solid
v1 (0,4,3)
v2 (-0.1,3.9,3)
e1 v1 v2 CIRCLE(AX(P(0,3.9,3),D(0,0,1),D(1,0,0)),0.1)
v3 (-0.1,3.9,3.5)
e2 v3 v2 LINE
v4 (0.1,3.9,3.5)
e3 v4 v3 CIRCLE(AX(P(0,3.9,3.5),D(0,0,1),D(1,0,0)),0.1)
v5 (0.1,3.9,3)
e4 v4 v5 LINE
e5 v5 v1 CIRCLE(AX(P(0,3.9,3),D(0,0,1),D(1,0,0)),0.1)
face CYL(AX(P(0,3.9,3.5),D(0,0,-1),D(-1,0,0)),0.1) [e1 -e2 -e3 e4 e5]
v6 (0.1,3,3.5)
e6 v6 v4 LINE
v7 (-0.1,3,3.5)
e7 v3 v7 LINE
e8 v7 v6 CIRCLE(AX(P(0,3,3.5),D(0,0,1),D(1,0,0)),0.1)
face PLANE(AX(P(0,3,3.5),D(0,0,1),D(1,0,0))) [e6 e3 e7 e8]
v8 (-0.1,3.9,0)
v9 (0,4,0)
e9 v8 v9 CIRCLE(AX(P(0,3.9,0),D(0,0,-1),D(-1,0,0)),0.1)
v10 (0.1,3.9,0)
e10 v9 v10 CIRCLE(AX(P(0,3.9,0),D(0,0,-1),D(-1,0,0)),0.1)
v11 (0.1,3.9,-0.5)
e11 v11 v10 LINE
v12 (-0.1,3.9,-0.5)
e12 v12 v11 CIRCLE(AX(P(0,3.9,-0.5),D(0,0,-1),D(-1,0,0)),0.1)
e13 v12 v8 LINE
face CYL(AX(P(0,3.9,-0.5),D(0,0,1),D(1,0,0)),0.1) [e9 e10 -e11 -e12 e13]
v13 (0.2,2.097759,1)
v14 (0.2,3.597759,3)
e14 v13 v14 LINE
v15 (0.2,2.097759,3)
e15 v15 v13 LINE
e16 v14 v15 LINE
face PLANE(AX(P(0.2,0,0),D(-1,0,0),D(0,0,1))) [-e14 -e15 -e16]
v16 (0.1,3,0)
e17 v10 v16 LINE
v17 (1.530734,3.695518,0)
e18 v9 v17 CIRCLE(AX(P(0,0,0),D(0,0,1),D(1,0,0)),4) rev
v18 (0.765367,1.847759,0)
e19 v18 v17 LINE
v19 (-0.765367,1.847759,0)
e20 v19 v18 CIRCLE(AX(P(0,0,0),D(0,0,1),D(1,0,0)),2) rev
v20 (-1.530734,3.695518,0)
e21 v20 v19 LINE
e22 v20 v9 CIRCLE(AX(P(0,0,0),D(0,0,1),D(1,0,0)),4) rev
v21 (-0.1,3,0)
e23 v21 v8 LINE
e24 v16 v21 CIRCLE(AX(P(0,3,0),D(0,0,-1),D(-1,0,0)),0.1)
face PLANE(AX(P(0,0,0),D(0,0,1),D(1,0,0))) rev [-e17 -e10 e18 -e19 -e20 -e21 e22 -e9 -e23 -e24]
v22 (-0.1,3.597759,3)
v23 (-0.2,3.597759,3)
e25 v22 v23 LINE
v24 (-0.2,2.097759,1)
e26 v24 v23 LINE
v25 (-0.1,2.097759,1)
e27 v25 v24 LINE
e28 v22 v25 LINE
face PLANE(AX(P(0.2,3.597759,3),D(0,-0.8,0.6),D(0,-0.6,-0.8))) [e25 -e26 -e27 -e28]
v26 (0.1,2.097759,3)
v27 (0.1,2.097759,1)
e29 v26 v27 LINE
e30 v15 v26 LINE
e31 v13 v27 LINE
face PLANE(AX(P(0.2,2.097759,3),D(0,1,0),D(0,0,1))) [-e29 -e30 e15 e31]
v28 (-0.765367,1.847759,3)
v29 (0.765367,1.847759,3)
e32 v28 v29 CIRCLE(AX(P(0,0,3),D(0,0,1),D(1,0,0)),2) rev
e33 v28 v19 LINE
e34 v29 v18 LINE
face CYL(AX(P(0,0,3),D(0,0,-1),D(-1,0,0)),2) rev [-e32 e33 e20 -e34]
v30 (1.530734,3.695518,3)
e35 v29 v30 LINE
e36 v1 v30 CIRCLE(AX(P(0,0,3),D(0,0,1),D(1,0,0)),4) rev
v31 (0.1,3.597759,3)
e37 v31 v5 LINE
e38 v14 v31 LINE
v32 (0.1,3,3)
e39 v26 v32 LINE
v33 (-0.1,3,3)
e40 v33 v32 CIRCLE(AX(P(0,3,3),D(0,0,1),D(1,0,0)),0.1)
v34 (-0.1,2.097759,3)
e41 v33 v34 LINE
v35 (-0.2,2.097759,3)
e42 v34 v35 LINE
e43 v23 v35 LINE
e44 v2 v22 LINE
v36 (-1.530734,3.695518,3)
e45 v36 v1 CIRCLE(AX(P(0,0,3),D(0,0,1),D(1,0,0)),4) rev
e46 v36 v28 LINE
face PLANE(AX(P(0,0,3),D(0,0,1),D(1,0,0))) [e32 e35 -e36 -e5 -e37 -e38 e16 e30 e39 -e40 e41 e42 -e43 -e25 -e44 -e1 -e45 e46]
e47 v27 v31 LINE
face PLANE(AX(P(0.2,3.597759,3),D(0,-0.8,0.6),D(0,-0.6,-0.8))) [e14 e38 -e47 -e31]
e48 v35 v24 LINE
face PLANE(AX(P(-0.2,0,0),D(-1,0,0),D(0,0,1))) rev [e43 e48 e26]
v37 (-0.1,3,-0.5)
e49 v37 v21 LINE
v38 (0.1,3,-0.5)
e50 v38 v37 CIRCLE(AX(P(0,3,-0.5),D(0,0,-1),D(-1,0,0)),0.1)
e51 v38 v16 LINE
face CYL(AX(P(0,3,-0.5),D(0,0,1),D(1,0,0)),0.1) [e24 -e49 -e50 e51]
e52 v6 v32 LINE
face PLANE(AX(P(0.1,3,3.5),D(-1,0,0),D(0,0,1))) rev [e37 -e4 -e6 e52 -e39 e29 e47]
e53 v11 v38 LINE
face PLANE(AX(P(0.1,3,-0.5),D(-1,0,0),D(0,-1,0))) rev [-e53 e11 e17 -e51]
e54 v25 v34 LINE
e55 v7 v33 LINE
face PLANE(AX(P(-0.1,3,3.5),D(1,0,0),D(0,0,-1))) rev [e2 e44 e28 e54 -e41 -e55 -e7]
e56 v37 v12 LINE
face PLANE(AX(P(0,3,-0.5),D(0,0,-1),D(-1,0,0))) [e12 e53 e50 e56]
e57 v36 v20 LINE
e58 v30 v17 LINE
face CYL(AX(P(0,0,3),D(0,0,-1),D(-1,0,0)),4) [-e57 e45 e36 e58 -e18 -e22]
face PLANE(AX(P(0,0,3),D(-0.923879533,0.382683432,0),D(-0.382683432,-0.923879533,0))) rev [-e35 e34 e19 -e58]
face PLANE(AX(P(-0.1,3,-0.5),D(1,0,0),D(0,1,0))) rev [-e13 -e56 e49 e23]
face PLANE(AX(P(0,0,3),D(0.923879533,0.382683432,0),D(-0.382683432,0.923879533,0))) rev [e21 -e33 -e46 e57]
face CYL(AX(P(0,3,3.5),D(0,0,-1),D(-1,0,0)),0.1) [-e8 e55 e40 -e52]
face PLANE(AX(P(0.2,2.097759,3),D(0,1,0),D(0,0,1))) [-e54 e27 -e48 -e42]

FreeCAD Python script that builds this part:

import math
import FreeCAD as App
import Part
import Sketcher
from FreeCAD import Vector
Q = App.Units.Quantity


def add_polygon(sketch, points):
    """Adds a closed chain of lines whose ends are joined by coincident constraints."""
    first, n = sketch.GeometryCount, len(points)
    for a, b in zip(points, points[1:] + points[:1]):
        sketch.addGeometry(Part.LineSegment(App.Vector(*a, 0), App.Vector(*b, 0)), False)
    for i in range(n):
        sketch.addConstraint(Sketcher.Constraint("Coincident", first + i, 2, first + (i + 1) % n, 1))

doc = App.newDocument("Part")
body = doc.addObject("PartDesign::Body", "Body")

sketch1 = doc.addObject("Sketcher::SketchObject", "Sketch")
body.addObject(sketch1)
sketch1.AttachmentSupport = (doc.XY_Plane, [""])
sketch1.MapMode = "FlatFace"
sketch1.addGeometry(Part.LineSegment(Vector(-1.530734, 3.695518, 0), Vector(-0.765367, 1.847759, 0)), False)
sketch1.addGeometry(Part.ArcOfCircle(Part.Circle(Vector(0, 0, 0), Vector(0, 0, 1), 2), math.radians(67.5), math.radians(112.5)), False)
sketch1.addGeometry(Part.LineSegment(Vector(0.765367, 1.847759, 0), Vector(1.530734, 3.695518, 0)), False)
sketch1.addGeometry(Part.ArcOfCircle(Part.Circle(Vector(0, 0, 0), Vector(0, 0, 1), 4), math.radians(67.5), math.radians(112.5)), False)
sketch1.addConstraint(Sketcher.Constraint("Coincident", 0, 2, 1, 2))
sketch1.addConstraint(Sketcher.Constraint("Coincident", 1, 1, 2, 1))
sketch1.addConstraint(Sketcher.Constraint("Coincident", 2, 2, 3, 1))
sketch1.addConstraint(Sketcher.Constraint("Coincident", 3, 2, 0, 1))
sketch1.addConstraint(Sketcher.Constraint("Coincident", 1, 3, -1, 1))
sketch1.addConstraint(Sketcher.Constraint("Coincident", 3, 3, -1, 1))
sketch1.addConstraint(Sketcher.Constraint("Horizontal", 0, 2, 1, 1))
sketch1.addConstraint(Sketcher.Constraint("Horizontal", 2, 2, 3, 2))
sketch1.addConstraint(Sketcher.Constraint("Radius", 1, Q("2 mm")))
sketch1.addConstraint(Sketcher.Constraint("Radius", 3, Q("4 mm")))
sketch1.addConstraint(Sketcher.Constraint("Angle", 0, Q("-67.5 deg")))
sketch1.addConstraint(Sketcher.Constraint("DistanceX", 0, 2, 2, 2, Q("2.296101 mm")))
pad1 = doc.addObject("PartDesign::Pad", "Pad")
body.addObject(pad1)
pad1.Profile = sketch1
pad1.Length = 3

sketch2 = doc.addObject("Sketcher::SketchObject", "Sketch001")
body.addObject(sketch2)
sketch2.AttachmentSupport = (doc.XY_Plane, [""])
sketch2.MapMode = "FlatFace"
sketch2.AttachmentOffset = App.Placement(Vector(0, 0, 3), App.Rotation())
sketch2.addGeometry(Part.LineSegment(Vector(-0.1, 3.9, 0), Vector(-0.1, 3, 0)), False)
sketch2.addGeometry(Part.ArcOfCircle(Part.Circle(Vector(0, 3, 0), Vector(0, 0, 1), 0.1), math.radians(180), math.radians(360)), False)
sketch2.addGeometry(Part.LineSegment(Vector(0.1, 3, 0), Vector(0.1, 3.9, 0)), False)
sketch2.addGeometry(Part.ArcOfCircle(Part.Circle(Vector(0, 3.9, 0), Vector(0, 0, 1), 0.1), math.radians(0), math.radians(180)), False)
sketch2.addConstraint(Sketcher.Constraint("Tangent", 0, 2, 1, 1))
sketch2.addConstraint(Sketcher.Constraint("Tangent", 1, 2, 2, 1))
sketch2.addConstraint(Sketcher.Constraint("Tangent", 2, 2, 3, 1))
sketch2.addConstraint(Sketcher.Constraint("Tangent", 3, 2, 0, 1))
sketch2.addConstraint(Sketcher.Constraint("Vertical", 0))
sketch2.addConstraint(Sketcher.Constraint("Vertical", 2))
sketch2.addConstraint(Sketcher.Constraint("PointOnObject", 1, 3, -2))
sketch2.addConstraint(Sketcher.Constraint("Radius", 1, Q("0.1 mm")))
sketch2.addConstraint(Sketcher.Constraint("DistanceY", 0, 2, 0, 1, Q("0.9 mm")))
sketch2.addConstraint(Sketcher.Constraint("DistanceY", -1, 1, 1, 3, Q("3 mm")))
pad2 = doc.addObject("PartDesign::Pad", "Pad001")
body.addObject(pad2)
pad2.Profile = sketch2
pad2.Length = 0.5

sketch3 = doc.addObject("Sketcher::SketchObject", "Sketch002")
body.addObject(sketch3)
sketch3.AttachmentSupport = (doc.XY_Plane, [""])
sketch3.MapMode = "FlatFace"
sketch3.AttachmentOffset = App.Placement(Vector(0, 0, -0.5), App.Rotation())
sketch3.addGeometry(Part.LineSegment(Vector(0.1, 3.9, 0), Vector(0.1, 3, 0)), False)
sketch3.addGeometry(Part.ArcOfCircle(Part.Circle(Vector(0, 3, 0), Vector(0, 0, 1), 0.1), math.radians(180), math.radians(360)), False)
sketch3.addGeometry(Part.LineSegment(Vector(-0.1, 3, 0), Vector(-0.1, 3.9, 0)), False)
sketch3.addGeometry(Part.ArcOfCircle(Part.Circle(Vector(0, 3.9, 0), Vector(0, 0, 1), 0.1), math.radians(0), math.radians(180)), False)
sketch3.addConstraint(Sketcher.Constraint("Tangent", 0, 2, 1, 2))
sketch3.addConstraint(Sketcher.Constraint("Tangent", 1, 1, 2, 1))
sketch3.addConstraint(Sketcher.Constraint("Tangent", 2, 2, 3, 2))
sketch3.addConstraint(Sketcher.Constraint("Tangent", 3, 1, 0, 1))
sketch3.addConstraint(Sketcher.Constraint("Vertical", 0))
sketch3.addConstraint(Sketcher.Constraint("Vertical", 2))
sketch3.addConstraint(Sketcher.Constraint("PointOnObject", 1, 3, -2))
sketch3.addConstraint(Sketcher.Constraint("Radius", 1, Q("0.1 mm")))
sketch3.addConstraint(Sketcher.Constraint("DistanceY", 0, 2, 0, 1, Q("0.9 mm")))
sketch3.addConstraint(Sketcher.Constraint("DistanceY", -1, 1, 1, 3, Q("3 mm")))
pad3 = doc.addObject("PartDesign::Pad", "Pad002")
body.addObject(pad3)
pad3.Profile = sketch3
pad3.Length = 0.5

sketch4 = doc.addObject("Sketcher::SketchObject", "Sketch003")
body.addObject(sketch4)
sketch4.AttachmentSupport = (doc.YZ_Plane, [""])
sketch4.MapMode = "FlatFace"
sketch4.AttachmentOffset = App.Placement(Vector(0, 0, 0.1), App.Rotation())
add_polygon(sketch4, [(3.597759, 3), (2.097759, 3), (2.097759, 1)])
sketch4.addConstraint(Sketcher.Constraint("Horizontal", 0))
sketch4.addConstraint(Sketcher.Constraint("Vertical", 1))
sketch4.addConstraint(Sketcher.Constraint("DistanceY", 1, 2, 1, 1, Q("2 mm")))
sketch4.addConstraint(Sketcher.Constraint("DistanceX", 0, 2, 0, 1, Q("1.5 mm")))
sketch4.addConstraint(Sketcher.Constraint("DistanceY", -1, 1, 0, 2, Q("3 mm")))
sketch4.addConstraint(Sketcher.Constraint("DistanceX", -1, 1, 0, 2, Q("2.097759 mm")))
pocket1 = doc.addObject("PartDesign::Pocket", "Pocket")
body.addObject(pocket1)
pocket1.Profile = sketch4
pocket1.Type = "TwoLengths"
pocket1.Length = 0.1
pocket1.Length2 = 0.3
pocket1.Reversed = True

sketch5 = doc.addObject("Sketcher::SketchObject", "Sketch004")
body.addObject(sketch5)
sketch5.AttachmentSupport = (doc.XY_Plane, [""])
sketch5.MapMode = "FlatFace"
sketch5.AttachmentOffset = App.Placement(Vector(0, 0, 3), App.Rotation())
add_polygon(sketch5, [(-0.1, 3.597759), (-0.1, 2.097759), (0.1, 2.097759), (0.1, 3.597759)])
sketch5.addConstraint(Sketcher.Constraint("Vertical", 0))
sketch5.addConstraint(Sketcher.Constraint("Horizontal", 1))
sketch5.addConstraint(Sketcher.Constraint("Vertical", 2))
sketch5.addConstraint(Sketcher.Constraint("Horizontal", 3))
sketch5.addConstraint(Sketcher.Constraint("DistanceX", 1, 1, 1, 2, Q("0.2 mm")))
sketch5.addConstraint(Sketcher.Constraint("DistanceY", 0, 2, 0, 1, Q("1.5 mm")))
sketch5.addConstraint(Sketcher.Constraint("DistanceX", 0, 2, -1, 1, Q("0.1 mm")))
sketch5.addConstraint(Sketcher.Constraint("DistanceY", -1, 1, 0, 2, Q("2.097759 mm")))
pad4 = doc.addObject("PartDesign::Pad", "Pad003")
body.addObject(pad4)
pad4.Profile = sketch5
pad4.Length = 3
pad4.Reversed = True

doc.recompute()
